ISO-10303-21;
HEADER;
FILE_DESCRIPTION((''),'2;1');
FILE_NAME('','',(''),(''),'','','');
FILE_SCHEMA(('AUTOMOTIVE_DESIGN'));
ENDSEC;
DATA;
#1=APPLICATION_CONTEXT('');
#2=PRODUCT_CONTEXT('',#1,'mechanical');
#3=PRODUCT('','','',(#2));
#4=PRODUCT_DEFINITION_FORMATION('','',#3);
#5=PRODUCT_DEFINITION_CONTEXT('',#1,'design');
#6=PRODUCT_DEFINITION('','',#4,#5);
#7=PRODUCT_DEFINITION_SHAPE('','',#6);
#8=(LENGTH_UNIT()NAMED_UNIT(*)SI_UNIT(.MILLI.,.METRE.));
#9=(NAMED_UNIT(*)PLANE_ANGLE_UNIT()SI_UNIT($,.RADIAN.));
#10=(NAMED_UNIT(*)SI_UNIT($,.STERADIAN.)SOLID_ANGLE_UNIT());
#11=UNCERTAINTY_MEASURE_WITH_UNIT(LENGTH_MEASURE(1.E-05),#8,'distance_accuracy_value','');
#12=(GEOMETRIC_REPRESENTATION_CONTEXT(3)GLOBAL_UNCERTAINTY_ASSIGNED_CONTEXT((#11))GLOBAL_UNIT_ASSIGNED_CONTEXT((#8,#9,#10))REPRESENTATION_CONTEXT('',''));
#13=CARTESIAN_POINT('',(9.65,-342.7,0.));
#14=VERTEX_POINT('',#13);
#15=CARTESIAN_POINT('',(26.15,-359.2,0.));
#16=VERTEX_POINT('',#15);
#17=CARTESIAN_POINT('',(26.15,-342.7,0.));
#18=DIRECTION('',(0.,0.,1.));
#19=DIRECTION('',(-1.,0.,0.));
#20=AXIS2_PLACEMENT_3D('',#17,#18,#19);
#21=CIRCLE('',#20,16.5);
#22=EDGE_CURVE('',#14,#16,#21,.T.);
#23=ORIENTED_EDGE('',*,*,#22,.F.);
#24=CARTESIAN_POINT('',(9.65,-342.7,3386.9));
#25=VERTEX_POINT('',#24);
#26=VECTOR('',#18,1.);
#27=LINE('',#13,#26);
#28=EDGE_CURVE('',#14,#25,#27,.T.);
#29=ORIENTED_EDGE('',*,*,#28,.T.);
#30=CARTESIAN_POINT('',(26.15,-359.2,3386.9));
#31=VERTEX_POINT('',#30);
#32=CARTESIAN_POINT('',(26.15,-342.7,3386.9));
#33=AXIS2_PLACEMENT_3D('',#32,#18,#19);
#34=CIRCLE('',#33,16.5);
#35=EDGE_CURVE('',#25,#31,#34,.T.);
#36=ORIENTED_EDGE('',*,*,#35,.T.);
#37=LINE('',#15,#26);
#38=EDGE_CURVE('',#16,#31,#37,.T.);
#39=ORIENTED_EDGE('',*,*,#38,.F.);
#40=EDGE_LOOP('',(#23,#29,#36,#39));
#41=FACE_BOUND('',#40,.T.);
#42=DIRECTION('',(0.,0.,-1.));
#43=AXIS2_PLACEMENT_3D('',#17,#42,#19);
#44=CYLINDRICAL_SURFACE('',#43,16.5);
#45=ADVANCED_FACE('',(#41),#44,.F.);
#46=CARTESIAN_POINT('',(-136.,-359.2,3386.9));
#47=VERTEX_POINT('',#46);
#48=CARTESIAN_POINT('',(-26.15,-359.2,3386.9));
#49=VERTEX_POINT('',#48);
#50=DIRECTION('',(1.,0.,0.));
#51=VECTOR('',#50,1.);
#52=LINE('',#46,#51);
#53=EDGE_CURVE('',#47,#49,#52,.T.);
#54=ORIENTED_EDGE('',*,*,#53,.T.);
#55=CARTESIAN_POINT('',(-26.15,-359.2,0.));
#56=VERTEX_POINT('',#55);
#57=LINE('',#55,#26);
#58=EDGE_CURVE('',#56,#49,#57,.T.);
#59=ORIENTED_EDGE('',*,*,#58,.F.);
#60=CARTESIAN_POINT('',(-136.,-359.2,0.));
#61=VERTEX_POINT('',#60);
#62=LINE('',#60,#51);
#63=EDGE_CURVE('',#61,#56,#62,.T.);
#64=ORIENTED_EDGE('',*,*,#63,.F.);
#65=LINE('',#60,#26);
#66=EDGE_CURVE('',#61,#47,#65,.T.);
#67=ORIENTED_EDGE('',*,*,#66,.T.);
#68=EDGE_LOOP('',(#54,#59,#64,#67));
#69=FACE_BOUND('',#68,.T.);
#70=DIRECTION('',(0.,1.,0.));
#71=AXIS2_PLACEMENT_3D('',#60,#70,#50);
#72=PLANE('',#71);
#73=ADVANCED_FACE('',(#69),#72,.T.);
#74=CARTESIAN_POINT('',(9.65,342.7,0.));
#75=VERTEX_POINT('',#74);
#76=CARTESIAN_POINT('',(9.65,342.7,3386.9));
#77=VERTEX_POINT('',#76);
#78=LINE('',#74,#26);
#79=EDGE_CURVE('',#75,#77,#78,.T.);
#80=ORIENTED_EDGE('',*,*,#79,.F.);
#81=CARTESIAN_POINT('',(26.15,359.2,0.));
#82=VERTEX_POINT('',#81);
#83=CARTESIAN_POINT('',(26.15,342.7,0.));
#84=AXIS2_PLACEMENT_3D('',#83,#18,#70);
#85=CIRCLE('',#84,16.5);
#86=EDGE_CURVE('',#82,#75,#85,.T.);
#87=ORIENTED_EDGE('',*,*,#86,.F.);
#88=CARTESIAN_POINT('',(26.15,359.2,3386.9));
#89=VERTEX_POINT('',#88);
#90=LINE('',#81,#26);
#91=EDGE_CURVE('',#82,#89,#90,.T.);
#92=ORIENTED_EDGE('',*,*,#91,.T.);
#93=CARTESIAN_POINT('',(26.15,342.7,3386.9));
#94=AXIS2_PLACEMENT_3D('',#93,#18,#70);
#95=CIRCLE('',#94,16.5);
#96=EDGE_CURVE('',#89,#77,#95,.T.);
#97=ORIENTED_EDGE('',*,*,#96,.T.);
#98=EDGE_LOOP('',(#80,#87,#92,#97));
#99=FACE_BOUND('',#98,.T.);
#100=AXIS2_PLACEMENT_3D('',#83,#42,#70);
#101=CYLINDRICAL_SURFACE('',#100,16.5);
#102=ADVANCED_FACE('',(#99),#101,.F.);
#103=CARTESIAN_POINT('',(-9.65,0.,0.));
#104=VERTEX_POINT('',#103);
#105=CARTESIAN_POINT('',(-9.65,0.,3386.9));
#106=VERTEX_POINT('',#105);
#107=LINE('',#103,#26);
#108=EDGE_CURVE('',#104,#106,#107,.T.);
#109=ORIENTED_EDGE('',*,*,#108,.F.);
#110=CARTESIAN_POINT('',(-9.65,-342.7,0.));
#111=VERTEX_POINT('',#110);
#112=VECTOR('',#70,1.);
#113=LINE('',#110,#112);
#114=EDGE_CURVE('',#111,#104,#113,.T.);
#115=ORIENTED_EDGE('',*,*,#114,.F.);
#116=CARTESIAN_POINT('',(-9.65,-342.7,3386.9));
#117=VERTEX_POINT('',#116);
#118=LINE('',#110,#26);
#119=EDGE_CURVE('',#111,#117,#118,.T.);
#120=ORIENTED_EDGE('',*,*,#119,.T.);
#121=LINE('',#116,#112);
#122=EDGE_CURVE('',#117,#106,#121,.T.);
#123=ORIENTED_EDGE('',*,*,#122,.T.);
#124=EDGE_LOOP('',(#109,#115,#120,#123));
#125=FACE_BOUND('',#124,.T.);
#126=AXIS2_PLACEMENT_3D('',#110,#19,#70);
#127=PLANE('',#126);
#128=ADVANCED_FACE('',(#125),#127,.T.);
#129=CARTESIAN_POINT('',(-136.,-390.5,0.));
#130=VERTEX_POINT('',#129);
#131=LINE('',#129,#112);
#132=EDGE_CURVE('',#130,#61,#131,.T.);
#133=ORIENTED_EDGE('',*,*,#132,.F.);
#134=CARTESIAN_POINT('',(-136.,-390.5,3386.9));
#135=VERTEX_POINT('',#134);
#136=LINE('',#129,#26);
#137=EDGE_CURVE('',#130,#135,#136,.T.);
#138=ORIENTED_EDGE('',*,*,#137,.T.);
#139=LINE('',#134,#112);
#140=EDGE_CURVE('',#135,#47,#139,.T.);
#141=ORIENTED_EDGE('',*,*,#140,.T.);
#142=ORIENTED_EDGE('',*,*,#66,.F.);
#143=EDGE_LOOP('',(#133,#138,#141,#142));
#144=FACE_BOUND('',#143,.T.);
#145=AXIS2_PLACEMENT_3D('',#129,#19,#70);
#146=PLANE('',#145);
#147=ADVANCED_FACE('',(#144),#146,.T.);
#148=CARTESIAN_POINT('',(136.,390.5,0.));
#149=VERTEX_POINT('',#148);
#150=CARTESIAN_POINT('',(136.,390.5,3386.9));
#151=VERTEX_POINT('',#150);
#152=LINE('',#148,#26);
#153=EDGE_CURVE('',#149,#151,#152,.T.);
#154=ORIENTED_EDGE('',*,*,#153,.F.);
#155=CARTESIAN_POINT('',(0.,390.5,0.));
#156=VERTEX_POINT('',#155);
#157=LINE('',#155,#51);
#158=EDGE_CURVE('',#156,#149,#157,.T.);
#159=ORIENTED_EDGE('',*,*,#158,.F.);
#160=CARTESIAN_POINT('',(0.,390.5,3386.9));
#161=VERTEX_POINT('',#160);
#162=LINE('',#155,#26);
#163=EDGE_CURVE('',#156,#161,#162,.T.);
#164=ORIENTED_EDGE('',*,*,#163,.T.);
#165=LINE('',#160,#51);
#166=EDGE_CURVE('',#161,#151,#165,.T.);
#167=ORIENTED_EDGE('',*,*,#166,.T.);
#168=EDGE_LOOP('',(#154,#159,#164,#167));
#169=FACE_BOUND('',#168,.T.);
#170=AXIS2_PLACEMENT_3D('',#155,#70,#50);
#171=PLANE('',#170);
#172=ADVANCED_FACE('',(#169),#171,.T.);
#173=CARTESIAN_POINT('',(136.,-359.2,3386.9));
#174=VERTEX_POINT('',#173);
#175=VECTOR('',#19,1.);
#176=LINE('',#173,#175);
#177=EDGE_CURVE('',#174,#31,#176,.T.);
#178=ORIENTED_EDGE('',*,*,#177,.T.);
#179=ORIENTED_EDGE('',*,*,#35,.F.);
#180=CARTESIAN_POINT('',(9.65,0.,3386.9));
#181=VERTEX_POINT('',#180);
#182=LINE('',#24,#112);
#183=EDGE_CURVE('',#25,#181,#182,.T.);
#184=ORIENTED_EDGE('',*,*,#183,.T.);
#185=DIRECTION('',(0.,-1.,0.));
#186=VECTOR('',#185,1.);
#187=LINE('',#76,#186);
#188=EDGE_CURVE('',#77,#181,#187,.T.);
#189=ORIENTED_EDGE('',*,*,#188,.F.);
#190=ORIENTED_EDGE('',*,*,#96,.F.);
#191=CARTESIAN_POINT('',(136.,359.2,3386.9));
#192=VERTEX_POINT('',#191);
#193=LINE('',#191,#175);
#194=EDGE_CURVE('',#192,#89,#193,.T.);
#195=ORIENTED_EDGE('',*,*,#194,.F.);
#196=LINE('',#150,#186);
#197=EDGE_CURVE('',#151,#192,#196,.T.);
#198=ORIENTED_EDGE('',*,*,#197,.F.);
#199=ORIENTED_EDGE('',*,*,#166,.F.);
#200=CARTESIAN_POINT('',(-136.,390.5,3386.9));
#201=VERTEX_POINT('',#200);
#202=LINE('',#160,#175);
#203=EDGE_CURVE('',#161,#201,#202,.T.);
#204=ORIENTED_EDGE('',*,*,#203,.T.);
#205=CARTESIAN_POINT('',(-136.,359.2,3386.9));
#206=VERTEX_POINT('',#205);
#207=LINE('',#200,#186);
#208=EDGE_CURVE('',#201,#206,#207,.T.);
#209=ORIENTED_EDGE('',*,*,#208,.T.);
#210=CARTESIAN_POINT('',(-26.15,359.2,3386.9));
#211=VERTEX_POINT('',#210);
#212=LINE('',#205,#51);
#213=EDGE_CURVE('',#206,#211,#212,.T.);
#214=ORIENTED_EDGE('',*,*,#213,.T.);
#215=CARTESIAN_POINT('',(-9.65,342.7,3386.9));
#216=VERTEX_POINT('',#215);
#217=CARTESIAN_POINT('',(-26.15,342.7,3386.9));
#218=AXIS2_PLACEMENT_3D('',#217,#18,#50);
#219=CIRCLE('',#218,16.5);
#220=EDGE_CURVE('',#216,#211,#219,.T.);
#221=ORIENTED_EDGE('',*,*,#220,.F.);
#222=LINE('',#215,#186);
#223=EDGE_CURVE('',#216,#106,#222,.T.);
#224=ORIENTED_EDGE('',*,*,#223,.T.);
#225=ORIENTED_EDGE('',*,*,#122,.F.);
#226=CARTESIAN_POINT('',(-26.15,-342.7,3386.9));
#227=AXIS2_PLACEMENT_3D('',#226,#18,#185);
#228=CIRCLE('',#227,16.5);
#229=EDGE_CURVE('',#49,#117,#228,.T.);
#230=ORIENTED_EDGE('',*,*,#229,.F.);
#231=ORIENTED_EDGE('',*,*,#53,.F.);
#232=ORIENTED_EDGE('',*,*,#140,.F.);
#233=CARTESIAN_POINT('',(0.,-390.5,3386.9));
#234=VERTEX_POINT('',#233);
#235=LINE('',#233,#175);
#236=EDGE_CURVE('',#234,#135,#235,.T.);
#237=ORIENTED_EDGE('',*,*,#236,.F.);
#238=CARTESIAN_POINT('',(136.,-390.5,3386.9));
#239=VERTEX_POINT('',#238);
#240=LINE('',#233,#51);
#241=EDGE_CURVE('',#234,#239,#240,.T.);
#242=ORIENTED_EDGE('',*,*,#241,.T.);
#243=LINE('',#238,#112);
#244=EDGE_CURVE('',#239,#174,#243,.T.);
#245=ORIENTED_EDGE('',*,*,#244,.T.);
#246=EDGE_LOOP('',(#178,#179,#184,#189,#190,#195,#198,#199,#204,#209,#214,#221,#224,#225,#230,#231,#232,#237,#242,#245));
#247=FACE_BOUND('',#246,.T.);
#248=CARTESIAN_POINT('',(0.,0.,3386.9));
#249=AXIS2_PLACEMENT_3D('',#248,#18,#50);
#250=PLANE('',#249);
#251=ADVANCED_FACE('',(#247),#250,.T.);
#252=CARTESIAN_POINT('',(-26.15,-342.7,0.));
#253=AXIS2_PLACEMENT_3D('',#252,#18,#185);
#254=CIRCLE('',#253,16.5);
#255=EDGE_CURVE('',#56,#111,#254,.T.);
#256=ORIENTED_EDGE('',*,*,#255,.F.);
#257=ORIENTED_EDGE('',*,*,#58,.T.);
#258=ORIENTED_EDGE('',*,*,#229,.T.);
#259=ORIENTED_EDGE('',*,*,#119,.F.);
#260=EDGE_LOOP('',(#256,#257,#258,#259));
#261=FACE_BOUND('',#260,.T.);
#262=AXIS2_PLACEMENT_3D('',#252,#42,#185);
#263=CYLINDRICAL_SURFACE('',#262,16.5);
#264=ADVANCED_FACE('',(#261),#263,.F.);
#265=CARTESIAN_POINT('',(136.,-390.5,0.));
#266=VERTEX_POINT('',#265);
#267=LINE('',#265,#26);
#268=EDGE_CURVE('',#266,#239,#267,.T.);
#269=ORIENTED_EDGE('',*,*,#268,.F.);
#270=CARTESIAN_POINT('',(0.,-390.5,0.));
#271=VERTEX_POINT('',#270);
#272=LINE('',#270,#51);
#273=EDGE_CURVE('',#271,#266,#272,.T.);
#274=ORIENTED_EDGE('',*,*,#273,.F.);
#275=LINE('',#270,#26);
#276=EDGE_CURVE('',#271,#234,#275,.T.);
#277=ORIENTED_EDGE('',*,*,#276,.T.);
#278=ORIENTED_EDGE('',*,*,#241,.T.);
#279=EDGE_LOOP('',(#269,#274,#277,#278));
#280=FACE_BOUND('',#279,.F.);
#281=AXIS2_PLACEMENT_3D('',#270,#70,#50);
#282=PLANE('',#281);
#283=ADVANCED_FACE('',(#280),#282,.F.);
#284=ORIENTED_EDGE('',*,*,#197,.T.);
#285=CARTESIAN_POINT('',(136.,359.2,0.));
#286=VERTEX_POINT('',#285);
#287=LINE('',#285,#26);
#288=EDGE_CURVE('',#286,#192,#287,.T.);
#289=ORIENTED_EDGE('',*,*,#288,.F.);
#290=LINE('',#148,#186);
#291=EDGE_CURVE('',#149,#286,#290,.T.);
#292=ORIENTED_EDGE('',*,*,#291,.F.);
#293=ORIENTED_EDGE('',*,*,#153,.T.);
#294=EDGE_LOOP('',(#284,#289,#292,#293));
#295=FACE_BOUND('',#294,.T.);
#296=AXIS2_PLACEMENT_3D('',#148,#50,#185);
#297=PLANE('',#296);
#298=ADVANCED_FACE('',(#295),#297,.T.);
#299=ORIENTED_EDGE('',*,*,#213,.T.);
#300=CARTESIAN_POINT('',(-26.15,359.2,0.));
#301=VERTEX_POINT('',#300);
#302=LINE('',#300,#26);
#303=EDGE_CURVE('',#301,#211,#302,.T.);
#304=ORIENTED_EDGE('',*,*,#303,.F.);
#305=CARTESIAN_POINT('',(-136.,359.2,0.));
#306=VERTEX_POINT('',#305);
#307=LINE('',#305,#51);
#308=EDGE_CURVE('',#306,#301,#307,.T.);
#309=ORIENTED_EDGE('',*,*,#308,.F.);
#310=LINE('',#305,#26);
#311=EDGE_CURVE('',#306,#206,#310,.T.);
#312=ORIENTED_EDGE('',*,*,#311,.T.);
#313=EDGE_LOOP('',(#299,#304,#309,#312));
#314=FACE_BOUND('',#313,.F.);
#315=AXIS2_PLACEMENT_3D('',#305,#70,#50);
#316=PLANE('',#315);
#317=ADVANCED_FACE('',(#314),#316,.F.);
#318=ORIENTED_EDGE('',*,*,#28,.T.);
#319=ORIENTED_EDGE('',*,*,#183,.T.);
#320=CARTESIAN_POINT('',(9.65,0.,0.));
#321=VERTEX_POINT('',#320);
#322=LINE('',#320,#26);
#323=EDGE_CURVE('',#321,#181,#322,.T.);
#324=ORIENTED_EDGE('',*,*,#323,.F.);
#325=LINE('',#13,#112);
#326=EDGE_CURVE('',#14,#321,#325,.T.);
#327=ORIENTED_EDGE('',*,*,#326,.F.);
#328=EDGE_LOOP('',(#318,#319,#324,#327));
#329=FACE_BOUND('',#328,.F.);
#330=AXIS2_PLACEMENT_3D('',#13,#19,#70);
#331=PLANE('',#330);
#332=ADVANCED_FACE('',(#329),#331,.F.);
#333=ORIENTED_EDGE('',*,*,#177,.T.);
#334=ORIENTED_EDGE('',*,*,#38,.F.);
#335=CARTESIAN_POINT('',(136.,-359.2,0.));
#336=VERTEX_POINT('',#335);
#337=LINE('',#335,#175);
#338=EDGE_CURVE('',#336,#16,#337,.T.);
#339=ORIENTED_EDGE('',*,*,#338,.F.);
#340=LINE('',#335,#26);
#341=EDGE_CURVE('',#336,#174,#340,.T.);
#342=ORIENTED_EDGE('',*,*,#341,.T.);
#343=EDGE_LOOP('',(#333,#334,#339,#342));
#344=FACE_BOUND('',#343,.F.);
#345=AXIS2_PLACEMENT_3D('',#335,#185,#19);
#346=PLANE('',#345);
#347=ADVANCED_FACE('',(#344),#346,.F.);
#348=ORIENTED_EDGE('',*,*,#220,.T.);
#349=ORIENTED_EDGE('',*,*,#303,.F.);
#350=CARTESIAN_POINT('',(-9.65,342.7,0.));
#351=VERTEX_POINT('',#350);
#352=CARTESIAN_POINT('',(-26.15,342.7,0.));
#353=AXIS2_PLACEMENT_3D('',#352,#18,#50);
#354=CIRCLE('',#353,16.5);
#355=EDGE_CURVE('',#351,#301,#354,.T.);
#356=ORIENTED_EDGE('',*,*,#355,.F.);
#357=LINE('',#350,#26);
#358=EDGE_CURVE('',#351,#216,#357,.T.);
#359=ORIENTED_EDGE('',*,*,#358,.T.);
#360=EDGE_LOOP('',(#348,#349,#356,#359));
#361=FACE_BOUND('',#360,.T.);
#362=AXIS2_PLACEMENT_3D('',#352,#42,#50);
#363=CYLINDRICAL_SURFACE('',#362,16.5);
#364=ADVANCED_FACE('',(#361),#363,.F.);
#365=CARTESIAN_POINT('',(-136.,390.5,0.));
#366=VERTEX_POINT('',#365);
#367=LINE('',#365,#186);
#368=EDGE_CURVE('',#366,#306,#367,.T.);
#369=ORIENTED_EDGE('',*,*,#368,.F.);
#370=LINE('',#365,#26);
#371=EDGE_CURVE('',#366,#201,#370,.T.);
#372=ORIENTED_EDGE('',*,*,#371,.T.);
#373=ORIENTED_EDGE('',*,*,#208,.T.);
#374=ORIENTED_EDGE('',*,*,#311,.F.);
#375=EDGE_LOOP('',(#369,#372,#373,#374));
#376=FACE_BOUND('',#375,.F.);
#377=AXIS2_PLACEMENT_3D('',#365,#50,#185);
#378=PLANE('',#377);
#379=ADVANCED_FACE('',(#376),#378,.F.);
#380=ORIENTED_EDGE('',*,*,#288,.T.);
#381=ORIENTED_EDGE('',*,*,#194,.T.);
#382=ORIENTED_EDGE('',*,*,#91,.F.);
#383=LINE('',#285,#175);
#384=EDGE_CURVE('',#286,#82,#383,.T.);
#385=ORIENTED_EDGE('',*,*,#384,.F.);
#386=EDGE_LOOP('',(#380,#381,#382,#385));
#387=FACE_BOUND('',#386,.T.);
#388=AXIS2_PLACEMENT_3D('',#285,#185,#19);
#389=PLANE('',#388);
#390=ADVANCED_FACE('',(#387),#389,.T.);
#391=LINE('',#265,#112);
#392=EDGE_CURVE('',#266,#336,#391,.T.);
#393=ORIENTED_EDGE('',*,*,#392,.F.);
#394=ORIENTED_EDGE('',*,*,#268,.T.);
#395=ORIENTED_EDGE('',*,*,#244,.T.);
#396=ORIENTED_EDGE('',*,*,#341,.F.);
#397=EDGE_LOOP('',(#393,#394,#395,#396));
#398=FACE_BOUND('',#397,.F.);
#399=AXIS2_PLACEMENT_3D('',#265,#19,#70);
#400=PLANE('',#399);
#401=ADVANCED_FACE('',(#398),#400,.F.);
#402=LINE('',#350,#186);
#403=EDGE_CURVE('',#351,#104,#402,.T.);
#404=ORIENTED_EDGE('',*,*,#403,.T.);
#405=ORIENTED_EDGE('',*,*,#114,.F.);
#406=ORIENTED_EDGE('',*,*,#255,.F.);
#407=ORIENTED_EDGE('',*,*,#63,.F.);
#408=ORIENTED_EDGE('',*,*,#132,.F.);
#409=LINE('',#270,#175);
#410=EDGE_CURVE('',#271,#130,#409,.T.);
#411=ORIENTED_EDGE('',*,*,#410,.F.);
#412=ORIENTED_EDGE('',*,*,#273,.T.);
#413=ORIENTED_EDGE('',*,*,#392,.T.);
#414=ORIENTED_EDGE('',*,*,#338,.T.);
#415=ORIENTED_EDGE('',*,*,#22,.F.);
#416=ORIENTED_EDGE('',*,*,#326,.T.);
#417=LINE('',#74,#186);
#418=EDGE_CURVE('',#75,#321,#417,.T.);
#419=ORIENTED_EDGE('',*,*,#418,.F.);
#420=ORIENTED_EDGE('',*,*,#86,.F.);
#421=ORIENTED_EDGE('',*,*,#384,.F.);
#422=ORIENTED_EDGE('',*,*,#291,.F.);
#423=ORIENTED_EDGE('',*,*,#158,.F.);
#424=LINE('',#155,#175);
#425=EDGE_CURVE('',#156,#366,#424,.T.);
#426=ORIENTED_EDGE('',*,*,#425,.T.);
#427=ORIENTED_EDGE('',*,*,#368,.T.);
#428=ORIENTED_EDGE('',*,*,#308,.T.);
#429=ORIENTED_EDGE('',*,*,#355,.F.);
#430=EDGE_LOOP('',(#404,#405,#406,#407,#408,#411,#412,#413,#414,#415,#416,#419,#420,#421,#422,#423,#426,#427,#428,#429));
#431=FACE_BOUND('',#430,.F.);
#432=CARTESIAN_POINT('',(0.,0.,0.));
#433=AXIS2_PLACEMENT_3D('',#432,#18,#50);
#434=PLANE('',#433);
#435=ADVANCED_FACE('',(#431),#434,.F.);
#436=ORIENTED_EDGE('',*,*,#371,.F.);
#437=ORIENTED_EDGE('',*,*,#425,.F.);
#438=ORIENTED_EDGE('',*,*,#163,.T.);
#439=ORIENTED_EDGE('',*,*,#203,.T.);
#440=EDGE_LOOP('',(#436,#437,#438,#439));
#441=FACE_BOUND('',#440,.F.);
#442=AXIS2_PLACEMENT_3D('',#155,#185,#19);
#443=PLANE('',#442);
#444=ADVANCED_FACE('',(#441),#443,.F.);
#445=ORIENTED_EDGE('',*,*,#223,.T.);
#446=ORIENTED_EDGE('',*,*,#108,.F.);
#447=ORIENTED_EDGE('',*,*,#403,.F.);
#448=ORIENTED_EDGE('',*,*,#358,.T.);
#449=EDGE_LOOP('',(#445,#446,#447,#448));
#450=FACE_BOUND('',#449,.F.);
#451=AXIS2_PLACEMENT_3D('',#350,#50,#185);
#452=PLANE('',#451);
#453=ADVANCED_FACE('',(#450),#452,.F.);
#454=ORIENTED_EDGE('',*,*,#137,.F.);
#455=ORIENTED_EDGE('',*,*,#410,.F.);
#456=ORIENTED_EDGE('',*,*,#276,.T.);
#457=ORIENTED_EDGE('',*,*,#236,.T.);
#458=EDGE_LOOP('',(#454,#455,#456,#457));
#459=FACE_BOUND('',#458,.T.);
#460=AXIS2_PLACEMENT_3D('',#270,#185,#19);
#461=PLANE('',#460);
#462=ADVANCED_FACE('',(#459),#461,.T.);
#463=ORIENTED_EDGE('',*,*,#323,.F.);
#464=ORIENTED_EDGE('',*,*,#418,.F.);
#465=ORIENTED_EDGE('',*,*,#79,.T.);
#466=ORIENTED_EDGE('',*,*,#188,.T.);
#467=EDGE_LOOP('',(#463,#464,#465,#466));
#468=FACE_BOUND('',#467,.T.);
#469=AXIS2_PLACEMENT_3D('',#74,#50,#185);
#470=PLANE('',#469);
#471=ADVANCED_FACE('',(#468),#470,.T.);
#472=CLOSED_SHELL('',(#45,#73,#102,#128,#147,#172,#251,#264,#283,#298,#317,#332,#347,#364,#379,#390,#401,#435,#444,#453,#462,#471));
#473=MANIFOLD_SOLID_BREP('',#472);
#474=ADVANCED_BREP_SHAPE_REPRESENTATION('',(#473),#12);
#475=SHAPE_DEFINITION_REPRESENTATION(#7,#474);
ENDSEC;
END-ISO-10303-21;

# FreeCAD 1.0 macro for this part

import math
import FreeCAD as App
import Part
import Sketcher
from FreeCAD import Vector
Q = App.Units.Quantity

doc = App.newDocument("Part")
params = doc.addObject("Spreadsheet::Sheet", "Params")
for row, (alias, value) in enumerate([
    ("sketch1_radius", "16.5 mm"),
    ("sketch1_height", "31.3 mm"),
    ("pad1_length", "3386.9 mm"),
], start=1):
    params.set(f"A{row}", alias)
    params.set(f"B{row}", "=" + value)
    params.setAlias(f"B{row}", alias)

body = doc.addObject("PartDesign::Body", "Body")

# Sketch on XY plane
sketch1 = body.newObject("Sketcher::SketchObject", "Sketch")
sketch1.AttachmentSupport = (doc.getObject("XY_Plane"), [""])
sketch1.MapMode = "FlatFace"
sketch1.addGeometry([
    Part.LineSegment(Vector(-136, -359, 0), Vector(-136, -390, 0)),  # 0
    Part.LineSegment(Vector(-136, -390, 0), Vector(136, -390, 0)),  # 1
    Part.LineSegment(Vector(136, -390, 0), Vector(136, -359, 0)),  # 2
    Part.LineSegment(Vector(136, -359, 0), Vector(26, -359, 0)),  # 3
    Part.ArcOfCircle(Part.Circle(Vector(26, -343, 0), Vector(0, 0, 1), 16), math.radians(180), math.radians(270)),  # 4
    Part.LineSegment(Vector(10, -343, 0), Vector(10, 343, 0)),  # 5
    Part.ArcOfCircle(Part.Circle(Vector(26, 343, 0), Vector(0, 0, 1), 16), math.radians(90), math.radians(180)),  # 6
    Part.LineSegment(Vector(26, 359, 0), Vector(136, 359, 0)),  # 7
    Part.LineSegment(Vector(136, 359, 0), Vector(136, 390, 0)),  # 8
    Part.LineSegment(Vector(136, 390, 0), Vector(-136, 390, 0)),  # 9
    Part.LineSegment(Vector(-136, 390, 0), Vector(-136, 359, 0)),  # 10
    Part.LineSegment(Vector(-136, 359, 0), Vector(-26, 359, 0)),  # 11
    Part.ArcOfCircle(Part.Circle(Vector(-26, 343, 0), Vector(0, 0, 1), 16), math.radians(0), math.radians(90)),  # 12
    Part.LineSegment(Vector(-10, 343, 0), Vector(-10, -343, 0)),  # 13
    Part.ArcOfCircle(Part.Circle(Vector(-26, -343, 0), Vector(0, 0, 1), 16), math.radians(-90), math.radians(0)),  # 14
    Part.LineSegment(Vector(-26, -359, 0), Vector(-136, -359, 0)),  # 15
], False)
sketch1.addConstraint([
    Sketcher.Constraint("Coincident", 0, 2, 1, 1),
    Sketcher.Constraint("Coincident", 1, 2, 2, 1),
    Sketcher.Constraint("Coincident", 2, 2, 3, 1),
    Sketcher.Constraint("Tangent", 3, 2, 4, 2),
    Sketcher.Constraint("Tangent", 4, 1, 5, 1),
    Sketcher.Constraint("Tangent", 5, 2, 6, 2),
    Sketcher.Constraint("Tangent", 6, 1, 7, 1),
    Sketcher.Constraint("Coincident", 7, 2, 8, 1),
    Sketcher.Constraint("Coincident", 8, 2, 9, 1),
    Sketcher.Constraint("Coincident", 9, 2, 10, 1),
    Sketcher.Constraint("Coincident", 10, 2, 11, 1),
    Sketcher.Constraint("Tangent", 11, 2, 12, 2),
    Sketcher.Constraint("Tangent", 12, 1, 13, 1),
    Sketcher.Constraint("Tangent", 13, 2, 14, 2),
    Sketcher.Constraint("Tangent", 14, 1, 15, 1),
    Sketcher.Constraint("Coincident", 15, 2, 0, 1),
    Sketcher.Constraint("Vertical", 0),
    Sketcher.Constraint("Horizontal", 1),
    Sketcher.Constraint("Vertical", 2),
    Sketcher.Constraint("Horizontal", 3),
    Sketcher.Constraint("Vertical", 5),
    Sketcher.Constraint("Horizontal", 7),
    Sketcher.Constraint("Vertical", 8),
    Sketcher.Constraint("Horizontal", 9),
    Sketcher.Constraint("Vertical", 10),
    Sketcher.Constraint("Horizontal", 11),
    Sketcher.Constraint("Vertical", 13),
    Sketcher.Constraint("Horizontal", 15),
    Sketcher.Constraint("Equal", 4, 6),
    Sketcher.Constraint("Equal", 6, 12),
    Sketcher.Constraint("Equal", 12, 14),
    Sketcher.Constraint("Symmetric", 4, 3, 12, 3, -1, 1),
    Sketcher.Constraint("Symmetric", 0, 2, 8, 2, -1, 1),
    Sketcher.Constraint("Symmetric", 7, 2, 10, 2, -2),
    Sketcher.Constraint("Symmetric", 2, 2, 15, 2, -2),
    Sketcher.Constraint("Radius", 4, Q("16.5 mm")),
    Sketcher.Constraint("DistanceY", 0, 2, 0, 1, Q("31.3 mm")),
    Sketcher.Constraint("DistanceX", 0, 2, -1, 1, Q("136 mm")),
    Sketcher.Constraint("DistanceY", 0, 2, -1, 1, Q("390.5 mm")),
    Sketcher.Constraint("DistanceX", -1, 1, 4, 1, Q("9.65 mm")),
])
sketch1.setExpression("Constraints[35]", "Params.sketch1_radius")
sketch1.setExpression("Constraints[36]", "Params.sketch1_height")
pad1 = body.newObject("PartDesign::Pad", "Pad")
pad1.Profile = sketch1
pad1.setExpression("Length", "Params.pad1_length")

doc.recompute()
